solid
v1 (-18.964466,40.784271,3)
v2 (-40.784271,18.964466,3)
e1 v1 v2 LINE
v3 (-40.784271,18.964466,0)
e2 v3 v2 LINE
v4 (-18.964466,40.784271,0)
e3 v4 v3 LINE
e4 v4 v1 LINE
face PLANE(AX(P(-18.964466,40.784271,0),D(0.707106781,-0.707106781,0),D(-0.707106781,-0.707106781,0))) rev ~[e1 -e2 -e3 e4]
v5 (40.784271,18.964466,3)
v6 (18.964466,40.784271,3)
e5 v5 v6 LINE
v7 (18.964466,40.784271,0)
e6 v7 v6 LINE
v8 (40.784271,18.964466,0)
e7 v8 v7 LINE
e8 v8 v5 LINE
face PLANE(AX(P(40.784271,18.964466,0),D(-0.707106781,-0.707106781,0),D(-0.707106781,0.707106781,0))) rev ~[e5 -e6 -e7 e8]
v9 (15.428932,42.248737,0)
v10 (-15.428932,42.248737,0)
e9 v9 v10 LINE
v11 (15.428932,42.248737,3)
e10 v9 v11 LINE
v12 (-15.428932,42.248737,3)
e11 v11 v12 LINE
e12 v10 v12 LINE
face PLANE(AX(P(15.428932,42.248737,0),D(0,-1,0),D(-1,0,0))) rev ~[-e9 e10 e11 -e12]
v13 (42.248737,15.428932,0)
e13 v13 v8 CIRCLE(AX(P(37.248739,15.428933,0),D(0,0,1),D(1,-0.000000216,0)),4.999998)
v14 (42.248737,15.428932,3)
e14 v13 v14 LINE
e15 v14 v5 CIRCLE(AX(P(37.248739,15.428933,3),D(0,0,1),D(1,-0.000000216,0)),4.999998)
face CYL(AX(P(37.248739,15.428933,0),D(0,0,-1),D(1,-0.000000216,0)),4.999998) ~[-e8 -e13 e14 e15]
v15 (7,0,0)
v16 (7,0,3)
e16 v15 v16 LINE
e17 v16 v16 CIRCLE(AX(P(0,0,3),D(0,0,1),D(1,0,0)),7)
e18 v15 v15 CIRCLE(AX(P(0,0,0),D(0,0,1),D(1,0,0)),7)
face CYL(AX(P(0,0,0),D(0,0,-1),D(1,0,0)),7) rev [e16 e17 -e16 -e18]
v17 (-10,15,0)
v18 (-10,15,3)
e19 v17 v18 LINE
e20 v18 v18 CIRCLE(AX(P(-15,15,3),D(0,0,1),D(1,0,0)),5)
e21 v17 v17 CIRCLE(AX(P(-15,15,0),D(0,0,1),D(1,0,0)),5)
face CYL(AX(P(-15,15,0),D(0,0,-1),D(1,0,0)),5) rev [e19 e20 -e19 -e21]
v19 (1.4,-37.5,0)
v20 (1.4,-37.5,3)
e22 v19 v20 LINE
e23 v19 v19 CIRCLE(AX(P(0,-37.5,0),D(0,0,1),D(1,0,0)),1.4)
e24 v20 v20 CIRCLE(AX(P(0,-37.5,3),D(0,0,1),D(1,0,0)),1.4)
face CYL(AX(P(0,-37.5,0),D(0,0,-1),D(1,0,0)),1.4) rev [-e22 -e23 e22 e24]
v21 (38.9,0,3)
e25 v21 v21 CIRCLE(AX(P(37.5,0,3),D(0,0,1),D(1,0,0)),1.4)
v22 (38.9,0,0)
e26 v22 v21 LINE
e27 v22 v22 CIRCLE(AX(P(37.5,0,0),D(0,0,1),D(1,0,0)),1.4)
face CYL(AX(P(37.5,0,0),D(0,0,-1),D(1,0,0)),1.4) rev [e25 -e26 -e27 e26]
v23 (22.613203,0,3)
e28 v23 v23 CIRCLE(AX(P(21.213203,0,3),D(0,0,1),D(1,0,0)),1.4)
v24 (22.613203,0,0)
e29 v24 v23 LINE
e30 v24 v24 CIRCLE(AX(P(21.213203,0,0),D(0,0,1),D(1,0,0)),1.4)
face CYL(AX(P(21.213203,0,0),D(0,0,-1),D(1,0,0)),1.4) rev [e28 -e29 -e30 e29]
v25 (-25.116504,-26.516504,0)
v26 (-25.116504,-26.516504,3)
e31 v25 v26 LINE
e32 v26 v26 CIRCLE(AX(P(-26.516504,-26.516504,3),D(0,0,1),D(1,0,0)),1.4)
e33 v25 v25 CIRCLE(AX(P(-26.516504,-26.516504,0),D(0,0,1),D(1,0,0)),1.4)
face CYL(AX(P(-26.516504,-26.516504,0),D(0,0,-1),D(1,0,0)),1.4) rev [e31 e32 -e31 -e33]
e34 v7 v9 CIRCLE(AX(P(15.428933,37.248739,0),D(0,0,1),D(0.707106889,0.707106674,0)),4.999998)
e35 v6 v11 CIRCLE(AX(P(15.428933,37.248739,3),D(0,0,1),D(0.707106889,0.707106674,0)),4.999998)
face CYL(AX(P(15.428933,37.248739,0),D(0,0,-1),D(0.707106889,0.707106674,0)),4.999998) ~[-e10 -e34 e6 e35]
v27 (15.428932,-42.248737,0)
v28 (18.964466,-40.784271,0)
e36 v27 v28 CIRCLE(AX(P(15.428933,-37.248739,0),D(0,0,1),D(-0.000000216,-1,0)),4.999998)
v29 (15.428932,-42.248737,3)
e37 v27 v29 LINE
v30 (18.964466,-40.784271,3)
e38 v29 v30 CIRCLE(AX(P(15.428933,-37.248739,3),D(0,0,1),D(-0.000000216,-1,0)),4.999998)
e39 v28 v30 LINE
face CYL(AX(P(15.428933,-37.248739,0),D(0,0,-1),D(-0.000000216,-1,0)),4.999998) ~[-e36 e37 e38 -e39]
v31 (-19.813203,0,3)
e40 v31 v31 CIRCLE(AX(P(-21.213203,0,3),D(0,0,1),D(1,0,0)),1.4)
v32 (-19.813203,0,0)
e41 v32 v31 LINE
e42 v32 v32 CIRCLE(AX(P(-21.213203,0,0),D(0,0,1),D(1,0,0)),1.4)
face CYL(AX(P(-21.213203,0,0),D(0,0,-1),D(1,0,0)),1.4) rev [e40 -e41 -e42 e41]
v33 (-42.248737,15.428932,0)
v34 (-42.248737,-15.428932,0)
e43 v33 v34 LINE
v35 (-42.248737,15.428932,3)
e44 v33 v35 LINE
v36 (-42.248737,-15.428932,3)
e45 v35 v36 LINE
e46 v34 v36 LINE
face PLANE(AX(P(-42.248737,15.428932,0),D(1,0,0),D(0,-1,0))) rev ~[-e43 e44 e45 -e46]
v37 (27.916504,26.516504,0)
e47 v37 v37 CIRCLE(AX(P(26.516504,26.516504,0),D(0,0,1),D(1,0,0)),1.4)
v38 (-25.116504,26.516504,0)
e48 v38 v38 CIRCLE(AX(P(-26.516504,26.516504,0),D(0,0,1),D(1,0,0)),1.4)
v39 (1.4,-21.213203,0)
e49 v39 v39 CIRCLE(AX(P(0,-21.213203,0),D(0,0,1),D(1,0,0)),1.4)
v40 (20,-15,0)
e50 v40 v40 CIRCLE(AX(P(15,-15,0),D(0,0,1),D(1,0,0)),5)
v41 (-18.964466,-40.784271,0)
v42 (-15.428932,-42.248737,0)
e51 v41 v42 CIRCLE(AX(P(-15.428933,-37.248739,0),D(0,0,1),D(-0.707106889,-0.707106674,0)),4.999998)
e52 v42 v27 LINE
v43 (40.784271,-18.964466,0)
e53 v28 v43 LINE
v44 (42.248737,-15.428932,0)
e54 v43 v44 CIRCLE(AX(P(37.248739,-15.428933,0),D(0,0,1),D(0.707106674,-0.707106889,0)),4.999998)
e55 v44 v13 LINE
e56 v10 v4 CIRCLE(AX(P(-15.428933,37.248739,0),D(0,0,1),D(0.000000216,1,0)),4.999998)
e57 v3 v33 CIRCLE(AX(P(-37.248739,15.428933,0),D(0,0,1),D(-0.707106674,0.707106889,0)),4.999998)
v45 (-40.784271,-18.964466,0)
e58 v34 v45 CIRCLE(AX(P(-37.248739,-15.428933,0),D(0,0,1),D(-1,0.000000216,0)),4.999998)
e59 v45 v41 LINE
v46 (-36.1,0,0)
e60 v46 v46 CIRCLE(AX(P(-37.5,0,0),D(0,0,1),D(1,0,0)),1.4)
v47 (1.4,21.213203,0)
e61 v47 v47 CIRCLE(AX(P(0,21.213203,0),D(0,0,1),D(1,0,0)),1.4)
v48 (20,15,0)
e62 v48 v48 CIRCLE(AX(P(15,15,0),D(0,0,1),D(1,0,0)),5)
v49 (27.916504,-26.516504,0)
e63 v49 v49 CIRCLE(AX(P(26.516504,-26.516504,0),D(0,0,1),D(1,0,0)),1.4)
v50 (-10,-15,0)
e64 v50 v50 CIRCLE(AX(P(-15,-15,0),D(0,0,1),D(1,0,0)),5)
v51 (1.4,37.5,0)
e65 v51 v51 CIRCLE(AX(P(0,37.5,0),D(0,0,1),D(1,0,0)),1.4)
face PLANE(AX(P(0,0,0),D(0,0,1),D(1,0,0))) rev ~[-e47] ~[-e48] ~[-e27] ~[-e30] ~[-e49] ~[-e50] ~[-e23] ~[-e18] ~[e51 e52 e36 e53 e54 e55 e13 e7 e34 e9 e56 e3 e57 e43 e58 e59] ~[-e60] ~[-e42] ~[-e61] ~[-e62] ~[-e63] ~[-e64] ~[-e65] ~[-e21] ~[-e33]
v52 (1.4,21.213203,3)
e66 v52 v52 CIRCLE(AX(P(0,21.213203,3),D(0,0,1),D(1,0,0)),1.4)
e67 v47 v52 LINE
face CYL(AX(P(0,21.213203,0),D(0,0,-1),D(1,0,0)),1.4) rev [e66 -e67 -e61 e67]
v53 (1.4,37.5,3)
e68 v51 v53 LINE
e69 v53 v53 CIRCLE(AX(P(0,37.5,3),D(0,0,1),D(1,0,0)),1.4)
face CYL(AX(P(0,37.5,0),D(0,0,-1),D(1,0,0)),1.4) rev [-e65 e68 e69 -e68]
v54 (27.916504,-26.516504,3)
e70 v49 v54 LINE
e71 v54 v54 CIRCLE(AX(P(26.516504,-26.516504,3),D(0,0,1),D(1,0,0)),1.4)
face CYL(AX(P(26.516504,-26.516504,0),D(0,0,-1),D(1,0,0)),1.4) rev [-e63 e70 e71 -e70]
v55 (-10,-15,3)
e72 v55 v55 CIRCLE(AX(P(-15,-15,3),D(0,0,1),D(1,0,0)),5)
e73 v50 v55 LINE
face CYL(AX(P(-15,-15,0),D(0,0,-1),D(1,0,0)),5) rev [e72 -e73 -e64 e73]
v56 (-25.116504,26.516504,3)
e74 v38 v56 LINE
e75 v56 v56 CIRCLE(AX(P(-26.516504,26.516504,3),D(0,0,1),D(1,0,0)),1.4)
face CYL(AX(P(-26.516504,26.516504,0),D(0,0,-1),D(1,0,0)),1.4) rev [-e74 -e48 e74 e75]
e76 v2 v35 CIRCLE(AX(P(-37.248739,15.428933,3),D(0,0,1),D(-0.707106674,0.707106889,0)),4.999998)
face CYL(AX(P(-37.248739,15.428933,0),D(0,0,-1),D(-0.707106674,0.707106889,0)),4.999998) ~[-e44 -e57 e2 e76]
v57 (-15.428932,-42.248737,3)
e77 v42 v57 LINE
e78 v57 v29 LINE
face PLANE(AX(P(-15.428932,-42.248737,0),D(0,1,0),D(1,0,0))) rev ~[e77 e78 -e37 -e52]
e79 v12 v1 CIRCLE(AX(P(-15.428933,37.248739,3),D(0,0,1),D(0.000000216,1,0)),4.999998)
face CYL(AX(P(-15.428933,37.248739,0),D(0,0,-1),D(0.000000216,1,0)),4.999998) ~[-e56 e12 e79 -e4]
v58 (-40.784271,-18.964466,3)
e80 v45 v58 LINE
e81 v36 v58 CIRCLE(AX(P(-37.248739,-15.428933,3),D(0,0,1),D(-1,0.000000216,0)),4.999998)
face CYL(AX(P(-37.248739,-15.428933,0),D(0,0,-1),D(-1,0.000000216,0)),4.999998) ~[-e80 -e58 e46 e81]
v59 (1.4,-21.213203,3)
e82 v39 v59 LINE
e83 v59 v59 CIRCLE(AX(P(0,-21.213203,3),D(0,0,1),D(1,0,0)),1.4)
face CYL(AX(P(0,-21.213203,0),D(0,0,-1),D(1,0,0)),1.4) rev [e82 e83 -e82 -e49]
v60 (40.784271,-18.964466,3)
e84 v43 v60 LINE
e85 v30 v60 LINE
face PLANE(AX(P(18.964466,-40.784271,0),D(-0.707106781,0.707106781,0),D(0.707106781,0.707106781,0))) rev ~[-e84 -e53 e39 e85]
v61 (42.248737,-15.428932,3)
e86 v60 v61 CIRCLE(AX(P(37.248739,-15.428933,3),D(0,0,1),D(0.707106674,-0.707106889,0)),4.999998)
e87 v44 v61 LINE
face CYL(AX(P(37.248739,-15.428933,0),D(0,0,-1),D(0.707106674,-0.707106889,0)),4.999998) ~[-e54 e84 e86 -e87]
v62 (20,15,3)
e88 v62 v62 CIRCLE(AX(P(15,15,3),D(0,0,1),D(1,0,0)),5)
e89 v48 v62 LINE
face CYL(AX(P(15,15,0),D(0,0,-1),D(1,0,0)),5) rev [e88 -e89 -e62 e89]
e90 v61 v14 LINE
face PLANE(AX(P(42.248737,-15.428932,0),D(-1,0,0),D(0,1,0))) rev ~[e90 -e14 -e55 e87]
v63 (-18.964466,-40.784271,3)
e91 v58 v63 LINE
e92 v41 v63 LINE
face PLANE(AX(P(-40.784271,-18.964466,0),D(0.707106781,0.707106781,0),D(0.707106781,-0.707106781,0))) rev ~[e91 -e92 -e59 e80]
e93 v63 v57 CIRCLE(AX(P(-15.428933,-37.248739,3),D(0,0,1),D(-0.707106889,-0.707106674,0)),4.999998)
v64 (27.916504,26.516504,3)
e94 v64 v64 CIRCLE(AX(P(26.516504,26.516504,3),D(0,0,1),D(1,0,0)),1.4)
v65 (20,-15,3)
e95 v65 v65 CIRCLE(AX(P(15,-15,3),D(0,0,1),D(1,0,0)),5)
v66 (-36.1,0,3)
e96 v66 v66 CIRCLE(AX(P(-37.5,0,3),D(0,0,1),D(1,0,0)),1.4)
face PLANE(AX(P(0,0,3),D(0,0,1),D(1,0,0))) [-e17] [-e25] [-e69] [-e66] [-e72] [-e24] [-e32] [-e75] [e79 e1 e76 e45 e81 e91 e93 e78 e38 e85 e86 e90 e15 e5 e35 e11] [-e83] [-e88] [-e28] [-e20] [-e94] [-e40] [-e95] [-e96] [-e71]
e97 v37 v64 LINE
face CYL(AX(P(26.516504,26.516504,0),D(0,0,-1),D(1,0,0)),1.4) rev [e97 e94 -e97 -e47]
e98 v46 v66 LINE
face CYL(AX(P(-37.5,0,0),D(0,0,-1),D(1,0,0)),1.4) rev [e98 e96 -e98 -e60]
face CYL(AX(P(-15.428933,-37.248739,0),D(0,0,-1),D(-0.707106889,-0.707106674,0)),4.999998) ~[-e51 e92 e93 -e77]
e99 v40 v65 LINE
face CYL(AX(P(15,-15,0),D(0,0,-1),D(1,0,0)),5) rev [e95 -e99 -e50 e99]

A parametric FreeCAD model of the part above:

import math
import FreeCAD as App
import Part
import Sketcher

V = App.Vector
Q = App.Units.Quantity

doc = App.newDocument("Part")
body = doc.addObject("PartDesign::Body", "Body")

# Sketch on XY plane
sketch1 = body.newObject("Sketcher::SketchObject", "Sketch")
sketch1.AttachmentSupport = (doc.getObject("XY_Plane"), [""])
sketch1.MapMode = "FlatFace"
sketch1.addGeometry(Part.LineSegment(V(15.428932, 42.248737, 0), V(-15.428932, 42.248737, 0)), False)
sketch1.addGeometry(Part.ArcOfCircle(Part.Circle(V(-15.428933, 37.248739, 0), V(0, 0, 1), 4.999998), math.radians(89.999988), math.radians(135.000009)), False)
sketch1.addGeometry(Part.LineSegment(V(-18.964466, 40.784271, 0), V(-40.784271, 18.964466, 0)), False)
sketch1.addGeometry(Part.ArcOfCircle(Part.Circle(V(-37.248739, 15.428933, 0), V(0, 0, 1), 4.999998), math.radians(134.999991), math.radians(180.000012)), False)
sketch1.addGeometry(Part.LineSegment(V(-42.248737, 15.428932, 0), V(-42.248737, -15.428932, 0)), False)
sketch1.addGeometry(Part.ArcOfCircle(Part.Circle(V(-37.248739, -15.428933, 0), V(0, 0, 1), 4.999998), math.radians(179.999988), math.radians(225.000009)), False)
sketch1.addGeometry(Part.LineSegment(V(-40.784271, -18.964466, 0), V(-18.964466, -40.784271, 0)), False)
sketch1.addGeometry(Part.ArcOfCircle(Part.Circle(V(-15.428933, -37.248739, 0), V(0, 0, 1), 4.999998), math.radians(-135.000009), math.radians(-89.999988)), False)
sketch1.addGeometry(Part.LineSegment(V(-15.428932, -42.248737, 0), V(15.428932, -42.248737, 0)), False)
sketch1.addGeometry(Part.ArcOfCircle(Part.Circle(V(15.428933, -37.248739, 0), V(0, 0, 1), 4.999998), math.radians(-90.000012), math.radians(-44.999991)), False)
sketch1.addGeometry(Part.LineSegment(V(18.964466, -40.784271, 0), V(40.784271, -18.964466, 0)), False)
sketch1.addGeometry(Part.ArcOfCircle(Part.Circle(V(37.248739, -15.428933, 0), V(0, 0, 1), 4.999998), math.radians(-45.000009), math.radians(0.000012)), False)
sketch1.addGeometry(Part.LineSegment(V(42.248737, -15.428932, 0), V(42.248737, 15.428932, 0)), False)
sketch1.addGeometry(Part.ArcOfCircle(Part.Circle(V(37.248739, 15.428933, 0), V(0, 0, 1), 4.999998), math.radians(-0.000012), math.radians(45.000009)), False)
sketch1.addGeometry(Part.LineSegment(V(40.784271, 18.964466, 0), V(18.964466, 40.784271, 0)), False)
sketch1.addGeometry(Part.ArcOfCircle(Part.Circle(V(15.428933, 37.248739, 0), V(0, 0, 1), 4.999998), math.radians(44.999991), math.radians(90.000012)), False)
sketch1.addGeometry(Part.Circle(V(-26.516504, -26.516504, 0), V(0, 0, 1), 1.4), False)
sketch1.addGeometry(Part.Circle(V(-15, -15, 0), V(0, 0, 1), 5), False)
sketch1.addGeometry(Part.Circle(V(0, -37.5, 0), V(0, 0, 1), 1.4), False)
sketch1.addGeometry(Part.Circle(V(0, -21.213203, 0), V(0, 0, 1), 1.4), False)
sketch1.addGeometry(Part.Circle(V(26.516504, -26.516504, 0), V(0, 0, 1), 1.4), False)
sketch1.addGeometry(Part.Circle(V(15, -15, 0), V(0, 0, 1), 5), False)
sketch1.addGeometry(Part.Circle(V(-37.5, 0, 0), V(0, 0, 1), 1.4), False)
sketch1.addGeometry(Part.Circle(V(-21.213203, 0, 0), V(0, 0, 1), 1.4), False)
sketch1.addGeometry(Part.Circle(V(-15, 15, 0), V(0, 0, 1), 5), False)
sketch1.addGeometry(Part.Circle(V(-26.516504, 26.516504, 0), V(0, 0, 1), 1.4), False)
sketch1.addGeometry(Part.Circle(V(0, 0, 0), V(0, 0, 1), 7), False)
sketch1.addGeometry(Part.Circle(V(15, 15, 0), V(0, 0, 1), 5), False)
sketch1.addGeometry(Part.Circle(V(21.213203, 0, 0), V(0, 0, 1), 1.4), False)
sketch1.addGeometry(Part.Circle(V(37.5, 0, 0), V(0, 0, 1), 1.4), False)
sketch1.addGeometry(Part.Circle(V(0, 21.213203, 0), V(0, 0, 1), 1.4), False)
sketch1.addGeometry(Part.Circle(V(0, 37.5, 0), V(0, 0, 1), 1.4), False)
sketch1.addGeometry(Part.Circle(V(26.516504, 26.516504, 0), V(0, 0, 1), 1.4), False)
sketch1.addConstraint(Sketcher.Constraint("Tangent", 0, 2, 1, 1))
sketch1.addConstraint(Sketcher.Constraint("Tangent", 1, 2, 2, 1))
sketch1.addConstraint(Sketcher.Constraint("Tangent", 2, 2, 3, 1))
sketch1.addConstraint(Sketcher.Constraint("Tangent", 3, 2, 4, 1))
sketch1.addConstraint(Sketcher.Constraint("Tangent", 4, 2, 5, 1))
sketch1.addConstraint(Sketcher.Constraint("Tangent", 5, 2, 6, 1))
sketch1.addConstraint(Sketcher.Constraint("Tangent", 6, 2, 7, 1))
sketch1.addConstraint(Sketcher.Constraint("Tangent", 7, 2, 8, 1))
sketch1.addConstraint(Sketcher.Constraint("Tangent", 8, 2, 9, 1))
sketch1.addConstraint(Sketcher.Constraint("Tangent", 9, 2, 10, 1))
sketch1.addConstraint(Sketcher.Constraint("Tangent", 10, 2, 11, 1))
sketch1.addConstraint(Sketcher.Constraint("Tangent", 11, 2, 12, 1))
sketch1.addConstraint(Sketcher.Constraint("Tangent", 12, 2, 13, 1))
sketch1.addConstraint(Sketcher.Constraint("Tangent", 13, 2, 14, 1))
sketch1.addConstraint(Sketcher.Constraint("Tangent", 14, 2, 15, 1))
sketch1.addConstraint(Sketcher.Constraint("Tangent", 15, 2, 0, 1))
sketch1.addConstraint(Sketcher.Constraint("Horizontal", 0))
sketch1.addConstraint(Sketcher.Constraint("Vertical", 4))
sketch1.addConstraint(Sketcher.Constraint("Horizontal", 8))
sketch1.addConstraint(Sketcher.Constraint("Vertical", 12))
sketch1.addConstraint(Sketcher.Constraint("Coincident", 26, 3, -1, 1))
sketch1.addConstraint(Sketcher.Constraint("Equal", 1, 3))
sketch1.addConstraint(Sketcher.Constraint("Equal", 3, 5))
sketch1.addConstraint(Sketcher.Constraint("Equal", 5, 7))
sketch1.addConstraint(Sketcher.Constraint("Equal", 7, 9))
sketch1.addConstraint(Sketcher.Constraint("Equal", 9, 11))
sketch1.addConstraint(Sketcher.Constraint("Equal", 11, 13))
sketch1.addConstraint(Sketcher.Constraint("Equal", 13, 15))
sketch1.addConstraint(Sketcher.Constraint("Equal", 16, 18))
sketch1.addConstraint(Sketcher.Constraint("Equal", 18, 19))
sketch1.addConstraint(Sketcher.Constraint("Equal", 19, 20))
sketch1.addConstraint(Sketcher.Constraint("Equal", 17, 21))
sketch1.addConstraint(Sketcher.Constraint("Equal", 20, 22))
sketch1.addConstraint(Sketcher.Constraint("Equal", 22, 23))
sketch1.addConstraint(Sketcher.Constraint("Equal", 21, 24))
sketch1.addConstraint(Sketcher.Constraint("Equal", 23, 25))
sketch1.addConstraint(Sketcher.Constraint("Equal", 24, 27))
sketch1.addConstraint(Sketcher.Constraint("Equal", 25, 28))
sketch1.addConstraint(Sketcher.Constraint("Equal", 28, 29))
sketch1.addConstraint(Sketcher.Constraint("Equal", 29, 30))
sketch1.addConstraint(Sketcher.Constraint("Equal", 30, 31))
sketch1.addConstraint(Sketcher.Constraint("Equal", 31, 32))
sketch1.addConstraint(Sketcher.Constraint("Symmetric", 1, 3, 9, 3, -1, 1))
sketch1.addConstraint(Sketcher.Constraint("Symmetric", 3, 3, 11, 3, -1, 1))
sketch1.addConstraint(Sketcher.Constraint("Symmetric", 21, 3, 24, 3, -1, 1))
sketch1.addConstraint(Sketcher.Constraint("Symmetric", 20, 3, 25, 3, -1, 1))
sketch1.addConstraint(Sketcher.Constraint("Symmetric", 17, 3, 27, 3, -1, 1))
sketch1.addConstraint(Sketcher.Constraint("Symmetric", 23, 3, 28, 3, -1, 1))
sketch1.addConstraint(Sketcher.Constraint("Symmetric", 22, 3, 29, 3, -1, 1))
sketch1.addConstraint(Sketcher.Constraint("Symmetric", 19, 3, 30, 3, -1, 1))
sketch1.addConstraint(Sketcher.Constraint("Symmetric", 18, 3, 31, 3, -1, 1))
sketch1.addConstraint(Sketcher.Constraint("Symmetric", 16, 3, 32, 3, -1, 1))
sketch1.addConstraint(Sketcher.Constraint("Symmetric", 5, 2, 13, 2, -1, 1))
sketch1.addConstraint(Sketcher.Constraint("Symmetric", 16, 3, 20, 3, -2))
sketch1.addConstraint(Sketcher.Constraint("Symmetric", 17, 3, 21, 3, -2))
sketch1.addConstraint(Sketcher.Constraint("Symmetric", 6, 2, 9, 2, -2))
sketch1.addConstraint(Sketcher.Constraint("PointOnObject", 18, 3, -2))
sketch1.addConstraint(Sketcher.Constraint("PointOnObject", 19, 3, -2))
sketch1.addConstraint(Sketcher.Constraint("PointOnObject", 22, 3, -1))
sketch1.addConstraint(Sketcher.Constraint("PointOnObject", 23, 3, -1))
sketch1.addConstraint(Sketcher.Constraint("Perpendicular", 2, 6))
sketch1.addConstraint(Sketcher.Constraint("Equal", 8, 4))
sketch1.addConstraint(Sketcher.Constraint("Diameter", 17, Q("10 mm")))
sketch1.addConstraint(Sketcher.Constraint("Diameter", 26, Q("14 mm")))
sketch1.addConstraint(Sketcher.Constraint("Diameter", 16, Q("2.8 mm")))
sketch1.addConstraint(Sketcher.Constraint("DistanceX", 17, 3, -1, 1, Q("15 mm")))
sketch1.addConstraint(Sketcher.Constraint("DistanceY", 17, 3, -1, 1, Q("15 mm")))
sketch1.addConstraint(Sketcher.Constraint("DistanceY", 18, 3, -1, 1, Q("37.5 mm")))
sketch1.addConstraint(Sketcher.Constraint("DistanceX", 22, 3, -1, 1, Q("37.5 mm")))
sketch1.addConstraint(Sketcher.Constraint("Radius", 1, Q("4.999998 mm")))
sketch1.addConstraint(Sketcher.Constraint("DistanceY", 16, 3, 19, 3, Q("5.303301 mm")))
sketch1.addConstraint(Sketcher.Constraint("DistanceX", 16, 3, 23, 3, Q("5.303301 mm")))
sketch1.addConstraint(Sketcher.Constraint("DistanceX", 0, 2, 0, 1, Q("30.857864 mm")))
sketch1.addConstraint(Sketcher.Constraint("DistanceY", -1, 1, 1, 3, Q("37.248739 mm")))
sketch1.addConstraint(Sketcher.Constraint("DistanceY", 16, 3, 5, 3, Q("11.087571 mm")))
sketch1.addConstraint(Sketcher.Constraint("DistanceX", 16, 3, 7, 3, Q("11.087571 mm")))
pad1 = body.newObject("PartDesign::Pad", "Pad")
pad1.Profile = sketch1
pad1.Length = 3

doc.recompute()
